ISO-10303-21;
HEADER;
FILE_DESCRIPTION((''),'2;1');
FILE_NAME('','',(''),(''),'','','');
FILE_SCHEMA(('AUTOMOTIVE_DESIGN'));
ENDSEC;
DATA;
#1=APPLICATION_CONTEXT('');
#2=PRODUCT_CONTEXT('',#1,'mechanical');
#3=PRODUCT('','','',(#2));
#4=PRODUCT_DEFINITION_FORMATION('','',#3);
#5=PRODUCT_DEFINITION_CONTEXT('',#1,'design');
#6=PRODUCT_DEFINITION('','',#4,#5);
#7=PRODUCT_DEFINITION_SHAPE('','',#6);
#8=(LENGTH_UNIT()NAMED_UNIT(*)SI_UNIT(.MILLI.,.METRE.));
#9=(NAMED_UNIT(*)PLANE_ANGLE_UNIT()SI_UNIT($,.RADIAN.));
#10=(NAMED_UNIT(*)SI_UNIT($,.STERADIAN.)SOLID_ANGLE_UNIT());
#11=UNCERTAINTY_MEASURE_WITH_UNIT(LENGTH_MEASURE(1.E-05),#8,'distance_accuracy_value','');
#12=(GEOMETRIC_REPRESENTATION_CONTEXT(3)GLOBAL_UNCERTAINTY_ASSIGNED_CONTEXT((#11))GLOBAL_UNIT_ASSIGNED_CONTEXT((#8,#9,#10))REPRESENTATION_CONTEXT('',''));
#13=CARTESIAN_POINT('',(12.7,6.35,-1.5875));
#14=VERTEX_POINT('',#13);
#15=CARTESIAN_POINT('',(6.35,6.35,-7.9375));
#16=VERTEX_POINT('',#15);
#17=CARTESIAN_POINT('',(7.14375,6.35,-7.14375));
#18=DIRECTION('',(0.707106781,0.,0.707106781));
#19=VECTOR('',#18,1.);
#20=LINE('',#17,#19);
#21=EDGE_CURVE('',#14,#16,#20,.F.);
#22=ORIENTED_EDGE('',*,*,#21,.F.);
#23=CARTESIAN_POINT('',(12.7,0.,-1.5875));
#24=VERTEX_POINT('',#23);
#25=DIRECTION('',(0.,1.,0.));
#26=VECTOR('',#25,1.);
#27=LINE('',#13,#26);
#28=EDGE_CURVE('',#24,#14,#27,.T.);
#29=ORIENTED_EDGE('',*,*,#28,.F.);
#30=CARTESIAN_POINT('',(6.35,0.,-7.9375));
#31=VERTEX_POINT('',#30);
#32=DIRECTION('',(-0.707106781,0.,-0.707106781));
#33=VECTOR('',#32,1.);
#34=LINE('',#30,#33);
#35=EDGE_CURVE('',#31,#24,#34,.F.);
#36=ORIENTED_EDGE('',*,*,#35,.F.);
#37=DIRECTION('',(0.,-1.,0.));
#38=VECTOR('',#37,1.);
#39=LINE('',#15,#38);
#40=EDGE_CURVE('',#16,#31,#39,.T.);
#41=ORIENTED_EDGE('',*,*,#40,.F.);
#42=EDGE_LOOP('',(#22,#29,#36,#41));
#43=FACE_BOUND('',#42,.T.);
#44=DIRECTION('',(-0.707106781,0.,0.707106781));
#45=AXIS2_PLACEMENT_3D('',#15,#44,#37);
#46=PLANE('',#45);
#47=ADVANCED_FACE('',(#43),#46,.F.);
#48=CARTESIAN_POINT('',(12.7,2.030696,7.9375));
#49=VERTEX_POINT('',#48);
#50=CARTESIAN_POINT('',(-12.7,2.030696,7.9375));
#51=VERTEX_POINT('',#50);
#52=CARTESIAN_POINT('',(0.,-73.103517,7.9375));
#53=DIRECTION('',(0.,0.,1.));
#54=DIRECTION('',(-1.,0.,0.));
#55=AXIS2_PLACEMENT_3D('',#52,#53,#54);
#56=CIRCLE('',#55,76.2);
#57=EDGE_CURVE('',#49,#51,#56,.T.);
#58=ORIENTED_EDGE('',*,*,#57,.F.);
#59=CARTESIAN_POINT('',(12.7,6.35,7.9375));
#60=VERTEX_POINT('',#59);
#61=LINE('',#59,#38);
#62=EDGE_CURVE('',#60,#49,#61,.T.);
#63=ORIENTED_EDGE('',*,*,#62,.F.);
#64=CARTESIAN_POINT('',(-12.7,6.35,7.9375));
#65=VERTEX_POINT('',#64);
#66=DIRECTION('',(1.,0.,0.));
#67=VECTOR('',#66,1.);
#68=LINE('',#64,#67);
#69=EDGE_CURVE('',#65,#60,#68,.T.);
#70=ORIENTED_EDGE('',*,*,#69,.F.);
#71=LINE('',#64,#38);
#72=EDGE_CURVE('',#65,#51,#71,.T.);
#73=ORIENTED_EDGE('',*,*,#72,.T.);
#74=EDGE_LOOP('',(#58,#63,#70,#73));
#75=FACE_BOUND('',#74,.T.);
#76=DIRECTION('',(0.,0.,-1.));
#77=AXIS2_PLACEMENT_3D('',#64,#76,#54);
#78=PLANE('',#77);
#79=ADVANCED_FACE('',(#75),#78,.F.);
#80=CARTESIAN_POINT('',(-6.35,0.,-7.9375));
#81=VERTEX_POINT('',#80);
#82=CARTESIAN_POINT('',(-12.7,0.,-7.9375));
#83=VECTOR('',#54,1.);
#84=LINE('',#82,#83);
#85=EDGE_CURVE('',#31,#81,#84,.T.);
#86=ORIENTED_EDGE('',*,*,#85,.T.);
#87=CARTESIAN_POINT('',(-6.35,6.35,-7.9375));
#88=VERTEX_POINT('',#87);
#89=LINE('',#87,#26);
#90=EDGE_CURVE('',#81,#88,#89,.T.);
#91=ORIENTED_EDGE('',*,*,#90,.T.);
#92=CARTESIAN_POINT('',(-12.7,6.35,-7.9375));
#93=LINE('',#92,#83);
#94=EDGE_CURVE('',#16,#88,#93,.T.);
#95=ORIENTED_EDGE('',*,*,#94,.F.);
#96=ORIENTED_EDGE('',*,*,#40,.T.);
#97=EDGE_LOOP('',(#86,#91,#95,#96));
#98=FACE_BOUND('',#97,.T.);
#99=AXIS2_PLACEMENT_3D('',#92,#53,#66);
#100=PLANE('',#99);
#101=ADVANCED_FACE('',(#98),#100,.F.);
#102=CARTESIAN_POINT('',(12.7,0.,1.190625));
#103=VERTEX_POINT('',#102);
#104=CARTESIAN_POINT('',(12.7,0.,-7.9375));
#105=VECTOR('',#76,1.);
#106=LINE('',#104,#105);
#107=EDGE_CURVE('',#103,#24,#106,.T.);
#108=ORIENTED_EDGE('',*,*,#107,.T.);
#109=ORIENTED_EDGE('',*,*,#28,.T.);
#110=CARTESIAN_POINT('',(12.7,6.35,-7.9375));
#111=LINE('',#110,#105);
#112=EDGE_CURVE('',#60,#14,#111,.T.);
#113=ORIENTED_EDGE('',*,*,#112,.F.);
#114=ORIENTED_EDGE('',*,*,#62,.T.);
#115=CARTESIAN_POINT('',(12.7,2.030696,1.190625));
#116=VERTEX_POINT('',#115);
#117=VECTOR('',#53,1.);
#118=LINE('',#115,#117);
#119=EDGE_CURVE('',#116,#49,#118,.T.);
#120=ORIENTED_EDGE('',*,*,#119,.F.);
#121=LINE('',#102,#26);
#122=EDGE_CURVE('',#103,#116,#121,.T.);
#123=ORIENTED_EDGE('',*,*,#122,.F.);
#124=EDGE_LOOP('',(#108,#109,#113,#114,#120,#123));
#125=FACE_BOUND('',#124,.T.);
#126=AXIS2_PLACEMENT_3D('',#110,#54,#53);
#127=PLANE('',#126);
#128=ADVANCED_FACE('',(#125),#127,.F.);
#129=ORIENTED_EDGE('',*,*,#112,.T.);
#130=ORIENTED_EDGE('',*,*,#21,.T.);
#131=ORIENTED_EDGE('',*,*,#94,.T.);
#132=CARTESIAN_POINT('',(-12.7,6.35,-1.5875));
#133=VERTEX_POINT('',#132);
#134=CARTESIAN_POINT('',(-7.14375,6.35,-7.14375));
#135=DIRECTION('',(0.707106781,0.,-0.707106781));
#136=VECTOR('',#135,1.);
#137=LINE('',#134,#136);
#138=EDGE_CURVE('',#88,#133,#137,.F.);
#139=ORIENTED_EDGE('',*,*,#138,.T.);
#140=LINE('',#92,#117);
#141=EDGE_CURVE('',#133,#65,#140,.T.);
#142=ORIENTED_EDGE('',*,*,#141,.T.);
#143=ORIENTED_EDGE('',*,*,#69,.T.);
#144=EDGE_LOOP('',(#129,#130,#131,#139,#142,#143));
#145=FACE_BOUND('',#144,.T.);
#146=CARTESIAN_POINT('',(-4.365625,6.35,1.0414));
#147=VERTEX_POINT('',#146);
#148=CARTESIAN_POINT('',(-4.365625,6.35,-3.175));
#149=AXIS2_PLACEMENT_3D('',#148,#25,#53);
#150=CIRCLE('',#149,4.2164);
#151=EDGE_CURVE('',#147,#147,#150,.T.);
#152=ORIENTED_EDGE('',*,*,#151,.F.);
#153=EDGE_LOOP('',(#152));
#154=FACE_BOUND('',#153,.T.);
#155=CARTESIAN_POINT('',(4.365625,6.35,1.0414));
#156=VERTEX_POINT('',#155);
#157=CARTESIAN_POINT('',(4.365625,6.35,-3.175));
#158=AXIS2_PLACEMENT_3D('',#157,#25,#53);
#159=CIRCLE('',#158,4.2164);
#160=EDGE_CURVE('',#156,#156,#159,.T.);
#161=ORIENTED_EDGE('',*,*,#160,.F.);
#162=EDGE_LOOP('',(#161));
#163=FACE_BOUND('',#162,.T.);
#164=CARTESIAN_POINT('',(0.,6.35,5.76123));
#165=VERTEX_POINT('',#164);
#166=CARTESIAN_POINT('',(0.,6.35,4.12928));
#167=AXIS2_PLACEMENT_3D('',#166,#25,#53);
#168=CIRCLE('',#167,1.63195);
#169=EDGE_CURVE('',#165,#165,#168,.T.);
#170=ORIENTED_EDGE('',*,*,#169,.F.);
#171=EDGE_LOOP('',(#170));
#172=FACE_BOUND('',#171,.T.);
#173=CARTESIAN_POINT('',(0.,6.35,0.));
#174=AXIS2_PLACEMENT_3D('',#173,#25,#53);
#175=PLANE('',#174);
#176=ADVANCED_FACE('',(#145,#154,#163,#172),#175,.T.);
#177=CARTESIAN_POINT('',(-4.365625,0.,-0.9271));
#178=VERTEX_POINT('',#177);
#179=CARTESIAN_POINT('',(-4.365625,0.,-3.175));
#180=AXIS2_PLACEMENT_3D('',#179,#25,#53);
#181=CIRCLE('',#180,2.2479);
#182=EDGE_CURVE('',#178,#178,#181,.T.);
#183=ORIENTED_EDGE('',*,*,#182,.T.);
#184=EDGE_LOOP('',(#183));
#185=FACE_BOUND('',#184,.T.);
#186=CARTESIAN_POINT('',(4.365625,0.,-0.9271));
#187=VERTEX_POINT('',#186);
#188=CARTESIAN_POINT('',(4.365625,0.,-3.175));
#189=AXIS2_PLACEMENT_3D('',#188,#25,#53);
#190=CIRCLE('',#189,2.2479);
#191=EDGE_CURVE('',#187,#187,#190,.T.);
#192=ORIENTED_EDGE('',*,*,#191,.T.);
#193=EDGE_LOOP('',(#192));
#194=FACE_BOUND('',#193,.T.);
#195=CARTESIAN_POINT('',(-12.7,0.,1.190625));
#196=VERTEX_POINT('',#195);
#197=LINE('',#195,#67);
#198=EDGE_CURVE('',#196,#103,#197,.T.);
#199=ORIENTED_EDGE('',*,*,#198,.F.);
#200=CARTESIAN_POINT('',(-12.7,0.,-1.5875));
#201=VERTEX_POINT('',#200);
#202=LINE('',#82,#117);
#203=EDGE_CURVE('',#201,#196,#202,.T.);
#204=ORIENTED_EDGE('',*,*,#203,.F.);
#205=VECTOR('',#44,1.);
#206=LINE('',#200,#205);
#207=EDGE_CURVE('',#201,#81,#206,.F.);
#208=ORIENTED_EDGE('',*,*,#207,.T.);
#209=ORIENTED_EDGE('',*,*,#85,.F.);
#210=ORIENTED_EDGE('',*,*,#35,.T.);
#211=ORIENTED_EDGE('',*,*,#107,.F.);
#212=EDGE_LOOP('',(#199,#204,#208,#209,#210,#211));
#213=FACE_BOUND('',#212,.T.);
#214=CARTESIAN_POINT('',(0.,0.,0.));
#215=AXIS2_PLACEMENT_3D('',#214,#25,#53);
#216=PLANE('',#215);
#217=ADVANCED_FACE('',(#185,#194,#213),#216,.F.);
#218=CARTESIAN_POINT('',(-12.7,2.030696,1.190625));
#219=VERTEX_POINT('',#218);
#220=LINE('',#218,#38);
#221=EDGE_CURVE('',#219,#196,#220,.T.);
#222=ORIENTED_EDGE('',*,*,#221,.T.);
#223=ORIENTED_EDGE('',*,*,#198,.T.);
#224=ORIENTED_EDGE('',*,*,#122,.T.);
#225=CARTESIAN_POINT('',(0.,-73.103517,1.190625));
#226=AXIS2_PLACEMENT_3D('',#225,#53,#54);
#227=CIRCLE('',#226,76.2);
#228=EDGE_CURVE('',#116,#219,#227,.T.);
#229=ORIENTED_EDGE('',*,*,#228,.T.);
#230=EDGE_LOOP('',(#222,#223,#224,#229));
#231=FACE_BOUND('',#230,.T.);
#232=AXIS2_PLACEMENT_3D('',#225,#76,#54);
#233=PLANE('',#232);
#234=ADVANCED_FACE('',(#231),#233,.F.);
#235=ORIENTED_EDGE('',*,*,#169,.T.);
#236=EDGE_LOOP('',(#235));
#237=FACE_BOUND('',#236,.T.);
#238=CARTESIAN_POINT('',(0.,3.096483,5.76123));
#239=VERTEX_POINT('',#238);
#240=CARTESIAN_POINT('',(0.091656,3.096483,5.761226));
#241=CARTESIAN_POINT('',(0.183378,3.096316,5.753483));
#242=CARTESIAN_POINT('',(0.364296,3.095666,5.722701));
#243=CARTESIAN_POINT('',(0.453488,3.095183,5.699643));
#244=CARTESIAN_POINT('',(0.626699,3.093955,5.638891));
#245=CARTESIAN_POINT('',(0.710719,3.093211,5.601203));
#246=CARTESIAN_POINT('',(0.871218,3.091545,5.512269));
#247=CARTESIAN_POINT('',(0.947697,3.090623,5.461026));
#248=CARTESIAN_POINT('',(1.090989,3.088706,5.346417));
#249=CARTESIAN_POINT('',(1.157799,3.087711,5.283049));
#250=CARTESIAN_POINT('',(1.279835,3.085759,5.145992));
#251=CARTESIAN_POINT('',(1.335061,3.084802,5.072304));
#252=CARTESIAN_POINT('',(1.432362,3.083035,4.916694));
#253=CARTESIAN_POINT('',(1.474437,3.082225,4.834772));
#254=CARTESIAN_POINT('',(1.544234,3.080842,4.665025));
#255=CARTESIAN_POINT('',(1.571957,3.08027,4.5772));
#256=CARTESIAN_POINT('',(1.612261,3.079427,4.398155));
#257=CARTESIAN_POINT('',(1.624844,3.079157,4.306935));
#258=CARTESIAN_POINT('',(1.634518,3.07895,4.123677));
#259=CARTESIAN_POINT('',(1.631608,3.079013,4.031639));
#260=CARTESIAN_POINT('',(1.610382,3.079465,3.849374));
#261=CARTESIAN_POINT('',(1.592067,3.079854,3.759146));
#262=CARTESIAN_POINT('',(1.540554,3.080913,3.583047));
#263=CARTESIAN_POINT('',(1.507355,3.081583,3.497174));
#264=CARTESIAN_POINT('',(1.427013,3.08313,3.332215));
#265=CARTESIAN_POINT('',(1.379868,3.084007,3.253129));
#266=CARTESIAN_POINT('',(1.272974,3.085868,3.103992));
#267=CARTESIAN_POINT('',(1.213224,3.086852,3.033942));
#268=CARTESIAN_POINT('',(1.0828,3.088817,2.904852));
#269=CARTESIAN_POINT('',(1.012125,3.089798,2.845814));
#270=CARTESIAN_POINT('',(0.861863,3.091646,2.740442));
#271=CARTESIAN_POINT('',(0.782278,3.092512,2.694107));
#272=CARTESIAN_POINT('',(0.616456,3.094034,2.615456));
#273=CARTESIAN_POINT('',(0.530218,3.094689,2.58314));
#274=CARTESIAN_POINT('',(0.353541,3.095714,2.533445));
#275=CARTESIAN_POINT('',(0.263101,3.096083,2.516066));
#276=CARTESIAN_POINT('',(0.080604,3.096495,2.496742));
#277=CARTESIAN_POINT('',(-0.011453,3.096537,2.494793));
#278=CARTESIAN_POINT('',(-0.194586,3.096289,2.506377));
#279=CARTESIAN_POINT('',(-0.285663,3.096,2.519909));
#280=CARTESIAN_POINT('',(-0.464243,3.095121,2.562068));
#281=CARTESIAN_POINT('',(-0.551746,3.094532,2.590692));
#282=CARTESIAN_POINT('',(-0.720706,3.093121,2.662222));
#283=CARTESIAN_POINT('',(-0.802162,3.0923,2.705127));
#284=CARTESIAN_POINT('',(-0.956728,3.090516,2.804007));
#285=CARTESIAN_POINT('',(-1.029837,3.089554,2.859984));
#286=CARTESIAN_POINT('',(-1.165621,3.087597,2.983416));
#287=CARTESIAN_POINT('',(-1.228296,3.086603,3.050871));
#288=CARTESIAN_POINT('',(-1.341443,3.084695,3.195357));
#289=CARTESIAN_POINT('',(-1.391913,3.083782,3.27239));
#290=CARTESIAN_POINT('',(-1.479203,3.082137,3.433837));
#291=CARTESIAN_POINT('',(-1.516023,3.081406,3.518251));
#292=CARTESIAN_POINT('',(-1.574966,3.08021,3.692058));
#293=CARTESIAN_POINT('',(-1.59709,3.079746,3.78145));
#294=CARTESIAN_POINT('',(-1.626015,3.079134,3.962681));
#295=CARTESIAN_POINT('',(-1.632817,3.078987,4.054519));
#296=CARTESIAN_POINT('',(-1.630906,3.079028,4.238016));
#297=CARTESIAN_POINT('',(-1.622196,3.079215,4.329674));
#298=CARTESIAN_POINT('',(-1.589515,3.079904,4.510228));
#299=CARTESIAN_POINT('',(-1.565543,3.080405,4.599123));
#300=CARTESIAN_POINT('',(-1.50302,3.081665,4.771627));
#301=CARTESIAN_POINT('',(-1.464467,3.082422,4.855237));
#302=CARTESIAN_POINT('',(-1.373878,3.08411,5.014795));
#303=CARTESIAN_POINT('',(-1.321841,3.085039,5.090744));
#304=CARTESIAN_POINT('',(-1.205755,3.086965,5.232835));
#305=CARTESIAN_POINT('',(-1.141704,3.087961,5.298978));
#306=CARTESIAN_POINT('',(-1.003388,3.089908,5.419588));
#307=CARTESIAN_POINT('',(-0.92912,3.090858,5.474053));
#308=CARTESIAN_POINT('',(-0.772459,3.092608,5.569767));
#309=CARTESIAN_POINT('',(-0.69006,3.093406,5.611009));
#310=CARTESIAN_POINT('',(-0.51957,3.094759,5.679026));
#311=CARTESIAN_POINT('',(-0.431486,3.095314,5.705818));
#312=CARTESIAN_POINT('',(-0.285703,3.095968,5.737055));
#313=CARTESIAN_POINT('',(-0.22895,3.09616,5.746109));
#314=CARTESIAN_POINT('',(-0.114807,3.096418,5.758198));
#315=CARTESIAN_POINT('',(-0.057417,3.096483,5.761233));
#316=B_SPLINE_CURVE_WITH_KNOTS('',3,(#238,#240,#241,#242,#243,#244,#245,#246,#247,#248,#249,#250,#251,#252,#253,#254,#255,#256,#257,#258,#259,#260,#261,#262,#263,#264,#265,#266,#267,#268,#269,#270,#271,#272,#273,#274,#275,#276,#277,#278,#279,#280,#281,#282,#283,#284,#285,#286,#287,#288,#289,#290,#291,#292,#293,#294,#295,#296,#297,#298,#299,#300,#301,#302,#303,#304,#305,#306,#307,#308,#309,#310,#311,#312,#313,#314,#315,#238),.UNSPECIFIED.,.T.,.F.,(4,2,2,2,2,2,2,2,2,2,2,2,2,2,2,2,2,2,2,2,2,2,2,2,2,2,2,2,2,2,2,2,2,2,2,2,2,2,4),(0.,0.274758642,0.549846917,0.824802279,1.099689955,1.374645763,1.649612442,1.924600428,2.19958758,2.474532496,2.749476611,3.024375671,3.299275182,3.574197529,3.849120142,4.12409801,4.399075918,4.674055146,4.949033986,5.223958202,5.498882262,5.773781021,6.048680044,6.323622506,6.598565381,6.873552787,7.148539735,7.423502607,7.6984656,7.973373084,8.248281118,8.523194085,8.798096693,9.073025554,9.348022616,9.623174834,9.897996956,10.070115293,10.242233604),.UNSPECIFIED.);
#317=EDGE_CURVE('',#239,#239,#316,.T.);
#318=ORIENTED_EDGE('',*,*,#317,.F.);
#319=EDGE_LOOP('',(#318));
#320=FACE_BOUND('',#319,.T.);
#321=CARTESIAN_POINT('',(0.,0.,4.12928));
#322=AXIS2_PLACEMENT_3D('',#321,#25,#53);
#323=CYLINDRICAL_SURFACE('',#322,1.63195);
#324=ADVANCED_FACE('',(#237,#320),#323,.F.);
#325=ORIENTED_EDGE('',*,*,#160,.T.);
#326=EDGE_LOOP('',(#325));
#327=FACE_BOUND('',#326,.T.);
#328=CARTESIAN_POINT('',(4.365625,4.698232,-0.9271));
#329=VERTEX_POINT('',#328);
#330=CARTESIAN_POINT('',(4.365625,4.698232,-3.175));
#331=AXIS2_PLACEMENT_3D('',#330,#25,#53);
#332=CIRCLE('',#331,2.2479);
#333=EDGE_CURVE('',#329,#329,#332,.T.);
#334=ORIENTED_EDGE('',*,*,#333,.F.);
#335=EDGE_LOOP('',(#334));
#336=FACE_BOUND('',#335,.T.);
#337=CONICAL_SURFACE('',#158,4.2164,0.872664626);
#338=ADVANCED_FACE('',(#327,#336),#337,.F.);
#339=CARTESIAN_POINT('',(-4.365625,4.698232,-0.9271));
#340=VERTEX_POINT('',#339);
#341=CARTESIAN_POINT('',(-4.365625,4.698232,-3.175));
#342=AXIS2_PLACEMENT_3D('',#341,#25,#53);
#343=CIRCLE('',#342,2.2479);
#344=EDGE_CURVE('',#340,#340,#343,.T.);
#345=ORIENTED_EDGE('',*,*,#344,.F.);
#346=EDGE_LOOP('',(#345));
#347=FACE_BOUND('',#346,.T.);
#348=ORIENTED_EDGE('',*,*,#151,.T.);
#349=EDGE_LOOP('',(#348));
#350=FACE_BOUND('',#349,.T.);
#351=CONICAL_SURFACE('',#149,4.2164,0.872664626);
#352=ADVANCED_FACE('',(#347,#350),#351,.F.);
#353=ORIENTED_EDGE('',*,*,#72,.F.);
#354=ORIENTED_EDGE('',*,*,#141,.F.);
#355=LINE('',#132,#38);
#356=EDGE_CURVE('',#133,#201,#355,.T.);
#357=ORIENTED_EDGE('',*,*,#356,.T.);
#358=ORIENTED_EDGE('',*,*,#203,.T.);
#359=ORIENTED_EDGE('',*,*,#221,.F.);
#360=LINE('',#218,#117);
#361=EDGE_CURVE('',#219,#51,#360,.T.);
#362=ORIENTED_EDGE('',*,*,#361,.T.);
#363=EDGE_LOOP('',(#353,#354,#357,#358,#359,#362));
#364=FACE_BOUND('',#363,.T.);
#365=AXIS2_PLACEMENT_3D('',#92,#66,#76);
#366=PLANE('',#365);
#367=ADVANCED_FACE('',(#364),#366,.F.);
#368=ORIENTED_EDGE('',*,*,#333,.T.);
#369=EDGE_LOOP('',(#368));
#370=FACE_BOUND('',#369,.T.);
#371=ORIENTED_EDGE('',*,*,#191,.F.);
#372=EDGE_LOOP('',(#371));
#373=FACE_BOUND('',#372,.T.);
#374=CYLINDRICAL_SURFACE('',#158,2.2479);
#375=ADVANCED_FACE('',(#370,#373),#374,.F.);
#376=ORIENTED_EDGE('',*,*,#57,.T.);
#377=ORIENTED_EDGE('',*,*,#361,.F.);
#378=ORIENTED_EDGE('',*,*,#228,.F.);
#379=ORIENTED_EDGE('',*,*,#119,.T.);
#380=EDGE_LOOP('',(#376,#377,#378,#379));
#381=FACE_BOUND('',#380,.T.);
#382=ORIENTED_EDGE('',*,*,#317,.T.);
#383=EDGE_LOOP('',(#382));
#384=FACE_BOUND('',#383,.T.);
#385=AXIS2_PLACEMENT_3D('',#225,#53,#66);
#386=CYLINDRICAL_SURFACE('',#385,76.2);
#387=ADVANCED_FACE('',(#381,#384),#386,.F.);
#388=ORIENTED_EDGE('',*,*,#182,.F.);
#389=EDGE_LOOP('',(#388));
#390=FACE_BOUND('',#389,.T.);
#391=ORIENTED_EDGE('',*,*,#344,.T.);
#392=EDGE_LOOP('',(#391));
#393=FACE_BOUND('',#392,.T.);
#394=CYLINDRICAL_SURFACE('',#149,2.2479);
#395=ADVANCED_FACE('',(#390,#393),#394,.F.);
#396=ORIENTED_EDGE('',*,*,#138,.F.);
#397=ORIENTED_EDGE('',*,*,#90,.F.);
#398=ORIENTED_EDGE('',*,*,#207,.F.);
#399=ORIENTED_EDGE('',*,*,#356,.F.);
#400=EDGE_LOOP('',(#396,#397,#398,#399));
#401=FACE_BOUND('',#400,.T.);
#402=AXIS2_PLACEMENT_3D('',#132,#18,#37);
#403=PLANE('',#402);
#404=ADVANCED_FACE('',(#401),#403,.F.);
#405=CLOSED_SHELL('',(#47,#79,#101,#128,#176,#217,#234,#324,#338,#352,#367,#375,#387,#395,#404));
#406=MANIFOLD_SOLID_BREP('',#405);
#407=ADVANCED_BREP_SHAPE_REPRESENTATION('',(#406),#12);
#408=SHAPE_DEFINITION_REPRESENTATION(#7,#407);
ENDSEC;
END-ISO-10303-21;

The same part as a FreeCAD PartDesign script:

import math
import FreeCAD as App
import Part
import Sketcher

V = App.Vector
Q = App.Units.Quantity


def edges_at(feature, points):
    """Names of the edges that pass closest to the given points."""
    edges = feature.Shape.Edges
    near = lambda p: min(range(len(edges)), key=lambda i: edges[i].distToShape(Part.Vertex(*p))[0])
    return sorted({f"Edge{near(p) + 1}" for p in points})

doc = App.newDocument("Part")
body = doc.addObject("PartDesign::Body", "Body")

# Sketch on XZ plane
sketch1 = body.newObject("Sketcher::SketchObject", "Sketch")
sketch1.AttachmentSupport = (doc.getObject("XZ_Plane"), [""])
sketch1.MapMode = "FlatFace"
sketch1.addGeometry([
    Part.LineSegment(V(-13, -8, 0), V(-13, 8, 0)),
    Part.LineSegment(V(-13, 8, 0), V(13, 8, 0)),
    Part.LineSegment(V(13, 8, 0), V(13, -8, 0)),
    Part.LineSegment(V(13, -8, 0), V(-13, -8, 0)),
], False)
sketch1.addConstraint([
    Sketcher.Constraint("Coincident", 0, 2, 1, 1),
    Sketcher.Constraint("Coincident", 1, 2, 2, 1),
    Sketcher.Constraint("Coincident", 2, 2, 3, 1),
    Sketcher.Constraint("Coincident", 3, 2, 0, 1),
    Sketcher.Constraint("Vertical", 0),
    Sketcher.Constraint("Horizontal", 1),
    Sketcher.Constraint("Vertical", 2),
    Sketcher.Constraint("Horizontal", 3),
    Sketcher.Constraint("Symmetric", 0, 2, 2, 2, -1, 1),
    Sketcher.Constraint("DistanceX", 1, 1, 1, 2, Q("1 in")),
    Sketcher.Constraint("DistanceY", 0, 1, 0, 2, Q("0.625 in")),
])
pad1 = body.newObject("PartDesign::Pad", "Pad")
pad1.Profile = sketch1
pad1.Length = Q("0.25 in")
pad1.Reversed = True
doc.recompute()

chamfer = body.newObject("PartDesign::Chamfer", "Chamfer")
chamfer.Base = (pad1, edges_at(pad1, [(-12.7, 3.175, -7.938), (12.7, 3.175, -7.938)]))
chamfer.Size = Q("0.25 in")

# Sketch on XY plane
sketch2 = body.newObject("Sketcher::SketchObject", "Sketch001")
sketch2.AttachmentSupport = (doc.getObject("XY_Plane"), [""])
sketch2.MapMode = "FlatFace"
sketch2.AttachmentOffset = App.Placement(V(0, 0, 0.3125 * 25.4), App.Rotation())
sketch2.addGeometry([
    Part.LineSegment(V(-12.7, 2, 0), V(-12.7, 0, 0)),
    Part.LineSegment(V(-12.7, 0, 0), V(12.7, 0, 0)),
    Part.LineSegment(V(12.7, 0, 0), V(12.7, 2, 0)),
    Part.ArcOfCircle(Part.Circle(V(0, -73.1, 0), V(0, 0, 1), 76.2), math.radians(80.41), math.radians(99.59)),
], False)
sketch2.addConstraint([
    Sketcher.Constraint("Coincident", 0, 2, 1, 1),
    Sketcher.Constraint("Coincident", 1, 2, 2, 1),
    Sketcher.Constraint("Coincident", 2, 2, 3, 1),
    Sketcher.Constraint("Coincident", 3, 2, 0, 1),
    Sketcher.Constraint("Vertical", 0),
    Sketcher.Constraint("Horizontal", 1),
    Sketcher.Constraint("Vertical", 2),
    Sketcher.Constraint("Symmetric", 0, 2, 1, 2, -1, 1),
    Sketcher.Constraint("PointOnObject", 3, 3, -2),
    Sketcher.Constraint("Radius", 3, Q("3 in")),
    Sketcher.Constraint("DistanceX", 1, 1, 1, 2, Q("1 in")),
    Sketcher.Constraint("DistanceY", 0, 2, 0, 1, Q("2.030696 mm")),
])
pocket1 = body.newObject("PartDesign::Pocket", "Pocket")
pocket1.Profile = sketch2
pocket1.Length = Q("0.265625 in")

# Sketch on XZ plane
sketch3 = body.newObject("Sketcher::SketchObject", "Sketch002")
sketch3.AttachmentSupport = (doc.getObject("XZ_Plane"), [""])
sketch3.MapMode = "FlatFace"
sketch3.AttachmentOffset = App.Placement(V(0, 0, -0.25 * 25.4), App.Rotation())
sketch3.addGeometry(Part.Circle(V(0, 4.1, 0), V(0, 0, 1), 1.6), False)
sketch3.addConstraint([
    Sketcher.Constraint("PointOnObject", 0, 3, -2),
    Sketcher.Constraint("Diameter", 0, Q("0.1285 in")),
    Sketcher.Constraint("DistanceY", -1, 1, 0, 3, Q("4.12928 mm")),
])
pocket2 = body.newObject("PartDesign::Pocket", "Pocket001")
pocket2.Profile = sketch3
pocket2.Type = "ThroughAll"
pocket2.Reversed = True

# Sketch on XZ plane
sketch4 = body.newObject("Sketcher::SketchObject", "Sketch003")
sketch4.AttachmentSupport = (doc.getObject("XZ_Plane"), [""])
sketch4.MapMode = "FlatFace"
sketch4.AttachmentOffset = App.Placement(V(0, 0, -0.25 * 25.4), App.Rotation())
sketch4.addGeometry([
    Part.Circle(V(-4.4, -3.2, 0), V(0, 0, 1), 2.2),
    Part.Circle(V(4.4, -3.2, 0), V(0, 0, 1), 2.2),
], False)
sketch4.addConstraint([
    Sketcher.Constraint("Equal", 0, 1),
    Sketcher.Constraint("Symmetric", 0, 3, 1, 3, -2),
    Sketcher.Constraint("Diameter", 0, Q("0.177 in")),
    Sketcher.Constraint("DistanceX", 0, 3, -1, 1, Q("0.171875 in")),
    Sketcher.Constraint("DistanceY", 0, 3, -1, 1, Q("0.125 in")),
])
doc.recompute()
hole = body.newObject("PartDesign::Hole", "Hole")
hole.Profile = sketch4
hole.ThreadType = "None"
hole.Diameter = Q("0.177 in")
hole.DepthType = "ThroughAll"
hole.HoleCutType = "Countersink"
hole.HoleCutDiameter = Q("0.332 in")
hole.HoleCutCountersinkAngle = 100
hole.Reversed = True

doc.recompute()
